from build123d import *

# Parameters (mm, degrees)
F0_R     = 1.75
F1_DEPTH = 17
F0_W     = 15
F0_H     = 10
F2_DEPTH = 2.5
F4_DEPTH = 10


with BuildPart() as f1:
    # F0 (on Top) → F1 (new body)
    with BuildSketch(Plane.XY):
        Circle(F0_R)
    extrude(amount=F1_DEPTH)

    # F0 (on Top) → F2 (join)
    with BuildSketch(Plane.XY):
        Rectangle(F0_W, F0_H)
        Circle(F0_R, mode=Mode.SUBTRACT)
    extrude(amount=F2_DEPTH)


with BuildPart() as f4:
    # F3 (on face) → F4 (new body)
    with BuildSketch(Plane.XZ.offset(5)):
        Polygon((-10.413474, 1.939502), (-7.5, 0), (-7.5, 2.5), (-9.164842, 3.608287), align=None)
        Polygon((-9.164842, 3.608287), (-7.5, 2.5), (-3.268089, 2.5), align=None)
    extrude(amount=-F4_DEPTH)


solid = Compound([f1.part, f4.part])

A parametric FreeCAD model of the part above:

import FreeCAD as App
import Part
import Sketcher


def add_polygon(sketch, points):
    """Adds a closed chain of lines whose ends are joined by coincident constraints."""
    first, n = sketch.GeometryCount, len(points)
    for a, b in zip(points, points[1:] + points[:1]):
        sketch.addGeometry(Part.LineSegment(App.Vector(*a, 0), App.Vector(*b, 0)), False)
    for i in range(n):
        sketch.addConstraint(Sketcher.Constraint("Coincident", first + i, 2, first + (i + 1) % n, 1))

doc = App.newDocument("Part")
params = doc.addObject("Spreadsheet::Sheet", "Params")
for row, (alias, value) in enumerate([
    ("sketch1_diameter", "3.5 mm"),
    ("pad1_length", "17 mm"),
    ("sketch2_diameter", "3.5 mm"),
    ("sketch2_width", "15 mm"),
    ("sketch2_height", "10 mm"),
    ("pad2_length", "2.5 mm"),
    ("sketch3_length", "6 mm"),
    ("sketch3_height", "2.5 mm"),
    ("sketch3_length2", "3.5 mm"),
    ("pad3_length", "10 mm"),
], start=1):
    params.set(f"A{row}", alias)
    params.set(f"B{row}", "=" + value)
    params.setAlias(f"B{row}", alias)

body = doc.addObject("PartDesign::Body", "Body")

sketch1 = body.newObject("Sketcher::SketchObject", "Sketch")
sketch1.AttachmentSupport = (doc.getObject("XY_Plane"), [""])
sketch1.MapMode = "FlatFace"
sketch1.addGeometry(Part.Circle(App.Vector(0, 0, 0), App.Vector(0, 0, 1), 1.8), False)
sketch1.addConstraint(Sketcher.Constraint("Coincident", 0, 3, -1, 1))
sketch1.addConstraint(Sketcher.Constraint("Diameter", 0, 3.5))
sketch1.setExpression("Constraints[1]", "Params.sketch1_diameter")
pad1 = body.newObject("PartDesign::Pad", "Pad")
pad1.Profile = sketch1
pad1.setExpression("Length", "Params.pad1_length")

sketch2 = body.newObject("Sketcher::SketchObject", "Sketch001")
sketch2.AttachmentSupport = (doc.getObject("XY_Plane"), [""])
sketch2.MapMode = "FlatFace"
add_polygon(sketch2, [(-7.5, 5), (-7.5, -5), (7.5, -5), (7.5, 5)])
sketch2.addGeometry(Part.Circle(App.Vector(0, 0, 0), App.Vector(0, 0, 1), 1.8), False)
sketch2.addConstraint(Sketcher.Constraint("Vertical", 0))
sketch2.addConstraint(Sketcher.Constraint("Horizontal", 1))
sketch2.addConstraint(Sketcher.Constraint("Vertical", 2))
sketch2.addConstraint(Sketcher.Constraint("Horizontal", 3))
sketch2.addConstraint(Sketcher.Constraint("Coincident", 4, 3, -1, 1))
sketch2.addConstraint(Sketcher.Constraint("Symmetric", 0, 2, 2, 2, -1, 1))
sketch2.addConstraint(Sketcher.Constraint("Diameter", 4, 3.5))
sketch2.addConstraint(Sketcher.Constraint("DistanceX", 1, 1, 1, 2, 15.0))
sketch2.addConstraint(Sketcher.Constraint("DistanceY", 0, 2, 0, 1, 10.0))
sketch2.setExpression("Constraints[10]", "Params.sketch2_diameter")
sketch2.setExpression("Constraints[11]", "Params.sketch2_width")
sketch2.setExpression("Constraints[12]", "Params.sketch2_height")
pad2 = body.newObject("PartDesign::Pad", "Pad001")
pad2.Profile = sketch2
pad2.setExpression("Length", "Params.pad2_length")
body2 = doc.addObject("PartDesign::Body", "Body001")

sketch3 = body2.newObject("Sketcher::SketchObject", "Sketch002")
sketch3.AttachmentSupport = (doc.getObject("XZ_Plane001"), [""])
sketch3.MapMode = "FlatFace"
sketch3.AttachmentOffset = App.Placement(App.Vector(0, 0, 5), App.Rotation())
add_polygon(sketch3, [(-10.4, 1.9), (-7.5, 0), (-7.5, 2.5), (-3.3, 2.5), (-9.2, 3.6)])
sketch3.addConstraint(Sketcher.Constraint("Vertical", 1))
sketch3.addConstraint(Sketcher.Constraint("Horizontal", 2))
sketch3.addConstraint(Sketcher.Constraint("PointOnObject", 0, 2, -1))
sketch3.addConstraint(Sketcher.Constraint("Distance", 3, 6.0))
sketch3.addConstraint(Sketcher.Constraint("DistanceY", 1, 1, 1, 2, 2.5))
sketch3.addConstraint(Sketcher.Constraint("Distance", 0, 3.5))
sketch3.addConstraint(Sketcher.Constraint("DistanceX", 0, 2, -1, 1, 7.5))
sketch3.addConstraint(Sketcher.Constraint("DistanceX", 2, 1, 2, 2, 4.231911))
sketch3.addConstraint(Sketcher.Constraint("Distance", 4, 2.084209))
sketch3.addConstraint(Sketcher.Constraint("DistanceX", 3, 2, -1, 1, 9.164842))
sketch3.setExpression("Constraints[8]", "Params.sketch3_length")
sketch3.setExpression("Constraints[9]", "Params.sketch3_height")
sketch3.setExpression("Constraints[10]", "Params.sketch3_length2")
pad3 = body2.newObject("PartDesign::Pad", "Pad002")
pad3.Profile = sketch3
pad3.setExpression("Length", "Params.pad3_length")
pad3.Reversed = True

doc.recompute()
